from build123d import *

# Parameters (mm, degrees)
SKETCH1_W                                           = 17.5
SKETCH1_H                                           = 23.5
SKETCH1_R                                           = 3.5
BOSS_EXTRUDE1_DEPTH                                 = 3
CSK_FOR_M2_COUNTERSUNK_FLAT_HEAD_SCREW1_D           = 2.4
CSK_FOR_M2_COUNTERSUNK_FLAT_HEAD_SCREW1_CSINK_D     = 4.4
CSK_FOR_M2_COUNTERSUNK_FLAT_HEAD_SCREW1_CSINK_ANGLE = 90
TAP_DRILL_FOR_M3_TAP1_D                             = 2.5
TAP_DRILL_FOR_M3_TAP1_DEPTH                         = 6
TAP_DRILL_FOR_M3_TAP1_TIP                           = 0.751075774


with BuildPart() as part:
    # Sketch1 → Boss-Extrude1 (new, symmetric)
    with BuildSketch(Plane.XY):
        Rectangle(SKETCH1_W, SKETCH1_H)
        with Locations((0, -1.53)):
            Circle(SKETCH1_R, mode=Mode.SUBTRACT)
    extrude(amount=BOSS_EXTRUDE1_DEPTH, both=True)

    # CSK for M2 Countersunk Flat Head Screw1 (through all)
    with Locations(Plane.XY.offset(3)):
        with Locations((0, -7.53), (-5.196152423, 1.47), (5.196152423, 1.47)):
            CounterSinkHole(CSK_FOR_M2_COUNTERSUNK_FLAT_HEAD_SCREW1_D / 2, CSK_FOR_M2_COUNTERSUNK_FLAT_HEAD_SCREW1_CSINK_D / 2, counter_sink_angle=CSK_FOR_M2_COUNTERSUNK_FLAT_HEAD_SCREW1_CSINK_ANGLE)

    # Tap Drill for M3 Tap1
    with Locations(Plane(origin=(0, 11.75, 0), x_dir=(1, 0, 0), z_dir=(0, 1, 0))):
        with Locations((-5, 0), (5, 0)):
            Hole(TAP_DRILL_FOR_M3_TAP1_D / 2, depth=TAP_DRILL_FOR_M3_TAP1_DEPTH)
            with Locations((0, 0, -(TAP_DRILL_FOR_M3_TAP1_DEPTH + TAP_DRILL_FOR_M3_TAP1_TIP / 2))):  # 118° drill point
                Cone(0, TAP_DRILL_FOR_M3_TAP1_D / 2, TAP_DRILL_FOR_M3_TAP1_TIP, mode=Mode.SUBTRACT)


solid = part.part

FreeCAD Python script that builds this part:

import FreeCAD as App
import Part
import Sketcher
from FreeCAD import Vector
Q = App.Units.Quantity

doc = App.newDocument("Part")
body = doc.addObject("PartDesign::Body", "Body")

# Sketch on XY plane
sketch1 = doc.addObject("Sketcher::SketchObject", "Sketch")
body.addObject(sketch1)
sketch1.AttachmentSupport = (doc.XY_Plane, [""])
sketch1.MapMode = "FlatFace"
sketch1.addGeometry(Part.LineSegment(Vector(-8.8, 11.8, 0), Vector(-8.8, -11.8, 0)), False)
sketch1.addGeometry(Part.LineSegment(Vector(-8.8, -11.8, 0), Vector(8.8, -11.8, 0)), False)
sketch1.addGeometry(Part.LineSegment(Vector(8.8, -11.8, 0), Vector(8.8, 11.8, 0)), False)
sketch1.addGeometry(Part.LineSegment(Vector(8.8, 11.8, 0), Vector(-8.8, 11.8, 0)), False)
sketch1.addGeometry(Part.Circle(Vector(0, -1.5, 0), Vector(0, 0, 1), 3.5), False)
sketch1.addConstraint(Sketcher.Constraint("Coincident", 0, 2, 1, 1))
sketch1.addConstraint(Sketcher.Constraint("Coincident", 1, 2, 2, 1))
sketch1.addConstraint(Sketcher.Constraint("Coincident", 2, 2, 3, 1))
sketch1.addConstraint(Sketcher.Constraint("Coincident", 3, 2, 0, 1))
sketch1.addConstraint(Sketcher.Constraint("Vertical", 0))
sketch1.addConstraint(Sketcher.Constraint("Horizontal", 1))
sketch1.addConstraint(Sketcher.Constraint("Vertical", 2))
sketch1.addConstraint(Sketcher.Constraint("Horizontal", 3))
sketch1.addConstraint(Sketcher.Constraint("Symmetric", 0, 2, 2, 2, -1, 1))
sketch1.addConstraint(Sketcher.Constraint("PointOnObject", 4, 3, -2))
sketch1.addConstraint(Sketcher.Constraint("Diameter", 4, Q("7 mm")))
sketch1.addConstraint(Sketcher.Constraint("DistanceX", 1, 1, 1, 2, Q("17.5 mm")))
sketch1.addConstraint(Sketcher.Constraint("DistanceY", 0, 2, 0, 1, Q("23.5 mm")))
sketch1.addConstraint(Sketcher.Constraint("DistanceY", 4, 3, -1, 1, Q("1.53 mm")))
pad1 = doc.addObject("PartDesign::Pad", "Pad")
body.addObject(pad1)
pad1.Profile = sketch1
pad1.Length = 6
pad1.Midplane = True

# Sketch on XY plane
sketch2 = doc.addObject("Sketcher::SketchObject", "Sketch001")
body.addObject(sketch2)
sketch2.AttachmentSupport = (doc.XY_Plane, [""])
sketch2.MapMode = "FlatFace"
sketch2.AttachmentOffset = App.Placement(Vector(0, 0, 3), App.Rotation())
sketch2.addGeometry(Part.Circle(Vector(0, -7.5, 0), Vector(0, 0, 1), 1.2), False)
sketch2.addGeometry(Part.Circle(Vector(-5.2, 1.5, 0), Vector(0, 0, 1), 1.2), False)
sketch2.addGeometry(Part.Circle(Vector(5.2, 1.5, 0), Vector(0, 0, 1), 1.2), False)
sketch2.addConstraint(Sketcher.Constraint("Equal", 0, 1))
sketch2.addConstraint(Sketcher.Constraint("Equal", 1, 2))
sketch2.addConstraint(Sketcher.Constraint("Symmetric", 1, 3, 2, 3, -2))
sketch2.addConstraint(Sketcher.Constraint("PointOnObject", 0, 3, -2))
sketch2.addConstraint(Sketcher.Constraint("Diameter", 0, Q("2.4 mm")))
sketch2.addConstraint(Sketcher.Constraint("DistanceY", 0, 3, 1, 3, Q("9 mm")))
sketch2.addConstraint(Sketcher.Constraint("DistanceY", 0, 3, -1, 1, Q("7.53 mm")))
sketch2.addConstraint(Sketcher.Constraint("DistanceX", 1, 3, -1, 1, Q("5.196152 mm")))
doc.recompute()
hole = doc.addObject("PartDesign::Hole", "Hole")
body.addObject(hole)
hole.Profile = sketch2
hole.ThreadType = "None"
hole.Diameter = 2.4
hole.DepthType = "ThroughAll"
hole.HoleCutType = "Countersink"
hole.HoleCutDiameter = 4.4
hole.HoleCutCountersinkAngle = 90

# Sketch on XZ plane
sketch3 = doc.addObject("Sketcher::SketchObject", "Sketch002")
body.addObject(sketch3)
sketch3.AttachmentSupport = (doc.XZ_Plane, [""])
sketch3.MapMode = "FlatFace"
sketch3.AttachmentOffset = App.Placement(Vector(0, 0, -11.75), App.Rotation())
sketch3.addGeometry(Part.Circle(Vector(-5, 0, 0), Vector(0, 0, 1), 1.2), False)
sketch3.addGeometry(Part.Circle(Vector(5, 0, 0), Vector(0, 0, 1), 1.2), False)
sketch3.addConstraint(Sketcher.Constraint("Equal", 0, 1))
sketch3.addConstraint(Sketcher.Constraint("Symmetric", 0, 3, 1, 3, -1, 1))
sketch3.addConstraint(Sketcher.Constraint("PointOnObject", 0, 3, -1))
sketch3.addConstraint(Sketcher.Constraint("Diameter", 0, Q("2.5 mm")))
sketch3.addConstraint(Sketcher.Constraint("DistanceX", 0, 3, -1, 1, Q("5 mm")))
doc.recompute()
hole2 = doc.addObject("PartDesign::Hole", "Hole001")
body.addObject(hole2)
hole2.Profile = sketch3
hole2.ThreadType = "None"
hole2.Diameter = 2.5
hole2.DepthType = "Dimension"
hole2.Depth = 6
hole2.DrillPoint = "Angled"
hole2.DrillPointAngle = 118
hole2.Reversed = True

doc.recompute()
